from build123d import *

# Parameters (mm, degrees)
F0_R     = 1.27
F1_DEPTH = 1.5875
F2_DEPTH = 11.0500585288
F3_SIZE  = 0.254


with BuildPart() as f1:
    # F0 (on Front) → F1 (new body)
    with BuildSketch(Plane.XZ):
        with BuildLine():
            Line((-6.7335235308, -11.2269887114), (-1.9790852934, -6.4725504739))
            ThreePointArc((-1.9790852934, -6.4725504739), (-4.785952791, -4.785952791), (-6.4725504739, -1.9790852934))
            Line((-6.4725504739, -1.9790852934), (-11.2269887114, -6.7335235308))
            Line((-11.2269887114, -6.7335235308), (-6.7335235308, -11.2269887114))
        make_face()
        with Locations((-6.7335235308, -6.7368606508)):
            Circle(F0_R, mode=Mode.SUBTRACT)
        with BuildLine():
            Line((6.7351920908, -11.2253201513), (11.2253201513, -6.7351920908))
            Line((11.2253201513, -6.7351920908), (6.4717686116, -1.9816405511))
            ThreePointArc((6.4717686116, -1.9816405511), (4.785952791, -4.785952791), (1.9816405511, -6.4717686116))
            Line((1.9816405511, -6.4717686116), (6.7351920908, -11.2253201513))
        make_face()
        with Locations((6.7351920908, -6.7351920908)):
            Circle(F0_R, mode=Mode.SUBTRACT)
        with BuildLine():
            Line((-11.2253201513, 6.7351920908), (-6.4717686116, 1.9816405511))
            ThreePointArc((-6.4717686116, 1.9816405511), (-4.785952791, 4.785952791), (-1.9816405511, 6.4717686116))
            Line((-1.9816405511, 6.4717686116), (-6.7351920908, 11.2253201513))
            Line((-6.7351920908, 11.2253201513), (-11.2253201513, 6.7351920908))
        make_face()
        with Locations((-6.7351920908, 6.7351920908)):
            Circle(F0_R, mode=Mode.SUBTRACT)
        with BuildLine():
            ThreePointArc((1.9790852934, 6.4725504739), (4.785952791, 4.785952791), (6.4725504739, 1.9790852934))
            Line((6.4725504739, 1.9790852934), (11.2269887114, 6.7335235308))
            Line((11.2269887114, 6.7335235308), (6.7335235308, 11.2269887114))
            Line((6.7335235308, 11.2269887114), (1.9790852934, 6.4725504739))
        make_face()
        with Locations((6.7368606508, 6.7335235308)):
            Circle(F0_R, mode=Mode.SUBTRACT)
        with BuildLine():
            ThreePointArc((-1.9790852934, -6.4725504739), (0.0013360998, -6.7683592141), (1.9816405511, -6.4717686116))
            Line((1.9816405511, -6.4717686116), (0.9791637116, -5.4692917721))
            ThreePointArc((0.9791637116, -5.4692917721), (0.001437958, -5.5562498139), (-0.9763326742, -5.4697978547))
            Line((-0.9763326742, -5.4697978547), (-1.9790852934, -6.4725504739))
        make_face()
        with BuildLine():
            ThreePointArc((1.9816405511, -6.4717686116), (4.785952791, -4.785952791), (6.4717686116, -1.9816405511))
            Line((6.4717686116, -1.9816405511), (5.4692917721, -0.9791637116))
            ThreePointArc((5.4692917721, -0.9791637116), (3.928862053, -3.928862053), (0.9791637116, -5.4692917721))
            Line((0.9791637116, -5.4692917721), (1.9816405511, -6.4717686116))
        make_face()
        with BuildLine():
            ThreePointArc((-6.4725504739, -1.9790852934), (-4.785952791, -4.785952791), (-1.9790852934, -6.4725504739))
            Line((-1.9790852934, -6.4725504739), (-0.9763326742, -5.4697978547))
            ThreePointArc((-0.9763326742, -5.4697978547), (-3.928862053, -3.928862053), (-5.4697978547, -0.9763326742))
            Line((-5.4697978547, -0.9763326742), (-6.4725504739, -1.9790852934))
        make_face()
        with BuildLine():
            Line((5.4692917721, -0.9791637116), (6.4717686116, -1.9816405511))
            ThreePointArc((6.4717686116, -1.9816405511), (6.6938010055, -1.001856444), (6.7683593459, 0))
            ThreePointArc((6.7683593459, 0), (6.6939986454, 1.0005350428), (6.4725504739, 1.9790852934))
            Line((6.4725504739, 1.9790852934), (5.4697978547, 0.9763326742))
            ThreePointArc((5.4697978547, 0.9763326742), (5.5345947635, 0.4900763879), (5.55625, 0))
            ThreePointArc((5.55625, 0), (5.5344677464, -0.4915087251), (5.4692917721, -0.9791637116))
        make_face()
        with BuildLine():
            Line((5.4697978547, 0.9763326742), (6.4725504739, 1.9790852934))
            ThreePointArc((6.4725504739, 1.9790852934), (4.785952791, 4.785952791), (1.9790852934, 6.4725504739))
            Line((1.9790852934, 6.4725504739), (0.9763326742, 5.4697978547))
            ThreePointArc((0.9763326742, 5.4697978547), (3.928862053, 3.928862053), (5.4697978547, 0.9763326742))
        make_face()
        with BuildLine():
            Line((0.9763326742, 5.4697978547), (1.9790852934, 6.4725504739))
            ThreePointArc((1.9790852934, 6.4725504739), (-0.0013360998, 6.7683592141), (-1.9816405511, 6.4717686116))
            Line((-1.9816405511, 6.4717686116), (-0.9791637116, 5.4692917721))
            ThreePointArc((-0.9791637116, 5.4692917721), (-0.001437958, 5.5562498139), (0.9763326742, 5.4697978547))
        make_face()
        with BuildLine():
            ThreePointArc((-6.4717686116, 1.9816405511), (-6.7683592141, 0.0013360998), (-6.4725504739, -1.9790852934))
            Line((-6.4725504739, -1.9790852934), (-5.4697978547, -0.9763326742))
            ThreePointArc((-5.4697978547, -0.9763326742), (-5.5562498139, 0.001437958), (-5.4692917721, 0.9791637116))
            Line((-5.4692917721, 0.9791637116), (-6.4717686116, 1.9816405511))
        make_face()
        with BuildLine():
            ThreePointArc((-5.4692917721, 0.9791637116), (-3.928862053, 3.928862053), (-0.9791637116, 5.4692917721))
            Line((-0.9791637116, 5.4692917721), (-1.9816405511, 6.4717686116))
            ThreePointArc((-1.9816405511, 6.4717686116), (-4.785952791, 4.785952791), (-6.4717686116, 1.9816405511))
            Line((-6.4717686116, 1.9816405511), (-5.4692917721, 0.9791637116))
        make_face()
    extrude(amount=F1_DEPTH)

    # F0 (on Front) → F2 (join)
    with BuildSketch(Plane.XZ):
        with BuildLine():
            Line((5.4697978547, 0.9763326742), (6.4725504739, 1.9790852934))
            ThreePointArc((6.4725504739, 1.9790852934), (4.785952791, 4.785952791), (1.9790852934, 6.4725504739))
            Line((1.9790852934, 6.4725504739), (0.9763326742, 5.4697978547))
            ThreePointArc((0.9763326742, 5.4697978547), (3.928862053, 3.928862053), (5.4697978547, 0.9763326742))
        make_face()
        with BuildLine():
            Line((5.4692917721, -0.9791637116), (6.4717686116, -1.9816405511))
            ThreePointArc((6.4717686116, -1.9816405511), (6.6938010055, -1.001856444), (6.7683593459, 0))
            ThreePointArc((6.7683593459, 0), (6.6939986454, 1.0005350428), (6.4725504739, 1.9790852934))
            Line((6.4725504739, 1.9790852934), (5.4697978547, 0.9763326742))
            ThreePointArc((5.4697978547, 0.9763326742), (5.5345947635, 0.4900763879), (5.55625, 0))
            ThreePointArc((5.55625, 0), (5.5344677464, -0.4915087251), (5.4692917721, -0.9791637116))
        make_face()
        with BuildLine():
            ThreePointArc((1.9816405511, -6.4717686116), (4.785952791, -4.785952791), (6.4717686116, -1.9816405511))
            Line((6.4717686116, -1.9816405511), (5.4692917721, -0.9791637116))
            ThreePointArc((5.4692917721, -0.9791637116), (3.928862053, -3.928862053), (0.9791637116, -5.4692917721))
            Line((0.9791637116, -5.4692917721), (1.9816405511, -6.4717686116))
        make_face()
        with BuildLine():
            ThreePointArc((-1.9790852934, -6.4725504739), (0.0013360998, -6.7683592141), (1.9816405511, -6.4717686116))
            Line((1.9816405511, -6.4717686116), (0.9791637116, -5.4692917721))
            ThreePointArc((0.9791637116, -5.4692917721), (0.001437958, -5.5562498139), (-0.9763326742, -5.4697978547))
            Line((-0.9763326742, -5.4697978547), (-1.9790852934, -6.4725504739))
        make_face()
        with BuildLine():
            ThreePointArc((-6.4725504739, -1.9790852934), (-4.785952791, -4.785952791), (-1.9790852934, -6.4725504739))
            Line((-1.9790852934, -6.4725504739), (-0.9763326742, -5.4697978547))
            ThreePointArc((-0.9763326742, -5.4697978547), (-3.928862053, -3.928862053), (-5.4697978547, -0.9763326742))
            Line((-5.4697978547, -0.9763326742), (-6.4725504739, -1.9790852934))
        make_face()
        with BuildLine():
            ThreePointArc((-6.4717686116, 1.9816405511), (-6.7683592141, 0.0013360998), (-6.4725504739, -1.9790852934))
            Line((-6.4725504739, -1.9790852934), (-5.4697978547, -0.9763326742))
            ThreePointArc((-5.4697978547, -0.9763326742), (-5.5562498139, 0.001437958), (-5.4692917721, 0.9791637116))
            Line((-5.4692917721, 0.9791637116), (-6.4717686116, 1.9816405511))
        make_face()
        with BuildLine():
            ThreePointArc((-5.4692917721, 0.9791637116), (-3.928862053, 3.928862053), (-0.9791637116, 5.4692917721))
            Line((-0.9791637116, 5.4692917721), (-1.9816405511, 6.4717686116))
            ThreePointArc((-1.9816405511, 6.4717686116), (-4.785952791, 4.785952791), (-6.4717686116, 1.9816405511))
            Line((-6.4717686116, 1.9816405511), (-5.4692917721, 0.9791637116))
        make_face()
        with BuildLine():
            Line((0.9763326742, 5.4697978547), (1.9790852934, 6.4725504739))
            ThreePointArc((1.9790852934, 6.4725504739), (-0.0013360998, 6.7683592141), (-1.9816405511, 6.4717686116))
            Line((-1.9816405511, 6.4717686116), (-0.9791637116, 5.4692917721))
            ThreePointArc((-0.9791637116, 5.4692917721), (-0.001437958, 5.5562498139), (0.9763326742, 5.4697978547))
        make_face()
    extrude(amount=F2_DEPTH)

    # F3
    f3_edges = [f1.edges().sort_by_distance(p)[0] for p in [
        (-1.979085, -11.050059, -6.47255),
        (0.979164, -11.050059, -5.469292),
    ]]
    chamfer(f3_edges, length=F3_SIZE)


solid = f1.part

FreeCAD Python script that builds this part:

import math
import FreeCAD as App
import Part
import Sketcher
from FreeCAD import Vector
Q = App.Units.Quantity


def edges_at(feature, points):
    """Names of the edges that pass closest to the given points."""
    edges = feature.Shape.Edges
    near = lambda p: min(range(len(edges)), key=lambda i: edges[i].distToShape(Part.Vertex(*p))[0])
    return sorted({f"Edge{near(p) + 1}" for p in points})

doc = App.newDocument("Part")
params = doc.addObject("Spreadsheet::Sheet", "Params")
for row, (alias, value) in enumerate([
    ("sketch1_diameter", "0.1 in"),
    ("sketch1_radius", "0.21875 in"),
    ("sketch1_length", "0.25 in"),
    ("pad1_length", "0.0625 in"),
    ("sketch2_radius", "0.21875 in"),
    ("pad2_length", "11.050059 mm"),
    ("chamfer_size", "0.01 in"),
], start=1):
    params.set(f"A{row}", alias)
    params.set(f"B{row}", "=" + value)
    params.setAlias(f"B{row}", alias)

body = doc.addObject("PartDesign::Body", "Body")

# Sketch on XZ plane
sketch1 = body.newObject("Sketcher::SketchObject", "Sketch")
sketch1.AttachmentSupport = (doc.getObject("XZ_Plane"), [""])
sketch1.MapMode = "FlatFace"
sketch1.addGeometry(Part.LineSegment(Vector(-6.7, -11.2, 0), Vector(-2, -6.5, 0)), False)
sketch1.addGeometry(Part.ArcOfCircle(Part.Circle(Vector(0, 0, 0), Vector(0, 0, 1), 6.8), math.radians(-107), math.radians(-73)), False)
sketch1.addGeometry(Part.LineSegment(Vector(2, -6.5, 0), Vector(6.7, -11.2, 0)), False)
sketch1.addGeometry(Part.LineSegment(Vector(6.7, -11.2, 0), Vector(11.2, -6.7, 0)), False)
sketch1.addGeometry(Part.LineSegment(Vector(11.2, -6.7, 0), Vector(6.5, -2, 0)), False)
sketch1.addGeometry(Part.ArcOfCircle(Part.Circle(Vector(0, 0, 0), Vector(0, 0, 1), 6.8), math.radians(-17.02), math.radians(0)), False)
sketch1.addGeometry(Part.ArcOfCircle(Part.Circle(Vector(0, 0, 0), Vector(0, 0, 1), 6.8), math.radians(0), math.radians(17)), False)
sketch1.addGeometry(Part.LineSegment(Vector(6.5, 2, 0), Vector(11.2, 6.7, 0)), False)
sketch1.addGeometry(Part.LineSegment(Vector(11.2, 6.7, 0), Vector(6.7, 11.2, 0)), False)
sketch1.addGeometry(Part.LineSegment(Vector(6.7, 11.2, 0), Vector(2, 6.5, 0)), False)
sketch1.addGeometry(Part.ArcOfCircle(Part.Circle(Vector(0, 0, 0), Vector(0, 0, 1), 6.8), math.radians(73), math.radians(107)), False)
sketch1.addGeometry(Part.LineSegment(Vector(-2, 6.5, 0), Vector(-6.7, 11.2, 0)), False)
sketch1.addGeometry(Part.LineSegment(Vector(-6.7, 11.2, 0), Vector(-11.2, 6.7, 0)), False)
sketch1.addGeometry(Part.LineSegment(Vector(-11.2, 6.7, 0), Vector(-6.5, 2, 0)), False)
sketch1.addGeometry(Part.ArcOfCircle(Part.Circle(Vector(0, 0, 0), Vector(0, 0, 1), 6.8), math.radians(163), math.radians(197)), False)
sketch1.addGeometry(Part.LineSegment(Vector(-6.5, -2, 0), Vector(-11.2, -6.7, 0)), False)
sketch1.addGeometry(Part.LineSegment(Vector(-11.2, -6.7, 0), Vector(-6.7, -11.2, 0)), False)
sketch1.addGeometry(Part.ArcOfCircle(Part.Circle(Vector(0, 0, 0), Vector(0, 0, 1), 5.6), math.radians(80), math.radians(100)), False)
sketch1.addGeometry(Part.ArcOfCircle(Part.Circle(Vector(0, 0, 0), Vector(0, 0, 1), 5.6), math.radians(10), math.radians(80)), False)
sketch1.addGeometry(Part.ArcOfCircle(Part.Circle(Vector(0, 0, 0), Vector(0, 0, 1), 5.6), math.radians(0), math.radians(10.12)), False)
sketch1.addGeometry(Part.ArcOfCircle(Part.Circle(Vector(0, 0, 0), Vector(0, 0, 1), 5.6), math.radians(-10.15), math.radians(0)), False)
sketch1.addGeometry(Part.ArcOfCircle(Part.Circle(Vector(0, 0, 0), Vector(0, 0, 1), 5.6), math.radians(-80), math.radians(-10)), False)
sketch1.addGeometry(Part.ArcOfCircle(Part.Circle(Vector(0, 0, 0), Vector(0, 0, 1), 5.6), math.radians(-100), math.radians(-80)), False)
sketch1.addGeometry(Part.ArcOfCircle(Part.Circle(Vector(0, 0, 0), Vector(0, 0, 1), 5.6), math.radians(-170), math.radians(-100)), False)
sketch1.addGeometry(Part.ArcOfCircle(Part.Circle(Vector(0, 0, 0), Vector(0, 0, 1), 5.6), math.radians(170), math.radians(190)), False)
sketch1.addGeometry(Part.ArcOfCircle(Part.Circle(Vector(0, 0, 0), Vector(0, 0, 1), 5.6), math.radians(100), math.radians(170)), False)
sketch1.addGeometry(Part.Circle(Vector(-6.7, -6.7, 0), Vector(0, 0, 1), 1.3), False)
sketch1.addGeometry(Part.Circle(Vector(6.7, -6.7, 0), Vector(0, 0, 1), 1.3), False)
sketch1.addGeometry(Part.Circle(Vector(6.7, 6.7, 0), Vector(0, 0, 1), 1.3), False)
sketch1.addGeometry(Part.Circle(Vector(-6.7, 6.7, 0), Vector(0, 0, 1), 1.3), False)
sketch1.addConstraint(Sketcher.Constraint("Coincident", 0, 2, 1, 1))
sketch1.addConstraint(Sketcher.Constraint("Coincident", 1, 2, 2, 1))
sketch1.addConstraint(Sketcher.Constraint("Coincident", 2, 2, 3, 1))
sketch1.addConstraint(Sketcher.Constraint("Coincident", 3, 2, 4, 1))
sketch1.addConstraint(Sketcher.Constraint("Coincident", 4, 2, 5, 1))
sketch1.addConstraint(Sketcher.Constraint("Tangent", 5, 2, 6, 1))
sketch1.addConstraint(Sketcher.Constraint("Coincident", 6, 2, 7, 1))
sketch1.addConstraint(Sketcher.Constraint("Coincident", 7, 2, 8, 1))
sketch1.addConstraint(Sketcher.Constraint("Coincident", 8, 2, 9, 1))
sketch1.addConstraint(Sketcher.Constraint("Coincident", 9, 2, 10, 1))
sketch1.addConstraint(Sketcher.Constraint("Coincident", 10, 2, 11, 1))
sketch1.addConstraint(Sketcher.Constraint("Coincident", 11, 2, 12, 1))
sketch1.addConstraint(Sketcher.Constraint("Coincident", 12, 2, 13, 1))
sketch1.addConstraint(Sketcher.Constraint("Coincident", 13, 2, 14, 1))
sketch1.addConstraint(Sketcher.Constraint("Coincident", 14, 2, 15, 1))
sketch1.addConstraint(Sketcher.Constraint("Coincident", 15, 2, 16, 1))
sketch1.addConstraint(Sketcher.Constraint("Coincident", 16, 2, 0, 1))
sketch1.addConstraint(Sketcher.Constraint("Tangent", 17, 1, 18, 2))
sketch1.addConstraint(Sketcher.Constraint("Tangent", 18, 1, 19, 2))
sketch1.addConstraint(Sketcher.Constraint("Tangent", 19, 1, 20, 2))
sketch1.addConstraint(Sketcher.Constraint("Tangent", 20, 1, 21, 2))
sketch1.addConstraint(Sketcher.Constraint("Tangent", 21, 1, 22, 2))
sketch1.addConstraint(Sketcher.Constraint("Tangent", 22, 1, 23, 2))
sketch1.addConstraint(Sketcher.Constraint("Tangent", 23, 1, 24, 2))
sketch1.addConstraint(Sketcher.Constraint("Tangent", 24, 1, 25, 2))
sketch1.addConstraint(Sketcher.Constraint("Tangent", 25, 1, 17, 2))
sketch1.addConstraint(Sketcher.Constraint("Coincident", 1, 3, -1, 1))
sketch1.addConstraint(Sketcher.Constraint("Coincident", 5, 3, -1, 1))
sketch1.addConstraint(Sketcher.Constraint("Coincident", 10, 3, -1, 1))
sketch1.addConstraint(Sketcher.Constraint("Coincident", 14, 3, -1, 1))
sketch1.addConstraint(Sketcher.Constraint("Coincident", 17, 3, -1, 1))
sketch1.addConstraint(Sketcher.Constraint("Coincident", 19, 3, -1, 1))
sketch1.addConstraint(Sketcher.Constraint("Coincident", 21, 3, -1, 1))
sketch1.addConstraint(Sketcher.Constraint("Coincident", 23, 3, -1, 1))
sketch1.addConstraint(Sketcher.Constraint("Equal", 1, 5))
sketch1.addConstraint(Sketcher.Constraint("Equal", 5, 6))
sketch1.addConstraint(Sketcher.Constraint("Equal", 6, 10))
sketch1.addConstraint(Sketcher.Constraint("Equal", 10, 14))
sketch1.addConstraint(Sketcher.Constraint("Equal", 26, 27))
sketch1.addConstraint(Sketcher.Constraint("Equal", 27, 28))
sketch1.addConstraint(Sketcher.Constraint("Equal", 28, 29))
sketch1.addConstraint(Sketcher.Constraint("Symmetric", 27, 3, 29, 3, -1, 1))
sketch1.addConstraint(Sketcher.Constraint("Symmetric", 2, 2, 11, 2, -1, 1))
sketch1.addConstraint(Sketcher.Constraint("Symmetric", 3, 2, 12, 2, -1, 1))
sketch1.addConstraint(Sketcher.Constraint("Symmetric", 7, 2, 15, 2, -1, 1))
sketch1.addConstraint(Sketcher.Constraint("Symmetric", 8, 2, 16, 2, -1, 1))
sketch1.addConstraint(Sketcher.Constraint("PointOnObject", 5, 2, -1))
sketch1.addConstraint(Sketcher.Constraint("PointOnObject", 19, 1, -1))
sketch1.addConstraint(Sketcher.Constraint("Perpendicular", 0, 2))
sketch1.addConstraint(Sketcher.Constraint("Perpendicular", 2, 3))
sketch1.addConstraint(Sketcher.Constraint("Perpendicular", 3, 4))
sketch1.addConstraint(Sketcher.Constraint("Perpendicular", 4, 7))
sketch1.addConstraint(Sketcher.Constraint("Perpendicular", 7, 8))
sketch1.addConstraint(Sketcher.Constraint("Perpendicular", 8, 9))
sketch1.addConstraint(Sketcher.Constraint("Perpendicular", 9, 11))
sketch1.addConstraint(Sketcher.Constraint("Perpendicular", 12, 13))
sketch1.addConstraint(Sketcher.Constraint("Perpendicular", 13, 15))
sketch1.addConstraint(Sketcher.Constraint("Horizontal", 27, 3, 3, 2))
sketch1.addConstraint(Sketcher.Constraint("Horizontal", 28, 3, 7, 2))
sketch1.addConstraint(Sketcher.Constraint("Vertical", 27, 3, 2, 2))
sketch1.addConstraint(Sketcher.Constraint("Vertical", 26, 3, 16, 2))
sketch1.addConstraint(Sketcher.Constraint("Equal", 2, 4))
sketch1.addConstraint(Sketcher.Constraint("Equal", 0, 7))
sketch1.addConstraint(Sketcher.Constraint("Diameter", 26, Q("0.1 in")))
sketch1.addConstraint(Sketcher.Constraint("Angle", 0, Q("45 deg")))
sketch1.addConstraint(Sketcher.Constraint("Radius", 17, Q("0.21875 in")))
sketch1.addConstraint(Sketcher.Constraint("Distance", 3, Q("0.25 in")))
sketch1.addConstraint(Sketcher.Constraint("Radius", 1, Q("6.768359 mm")))
sketch1.addConstraint(Sketcher.Constraint("DistanceX", 28, 3, 5, 2, Q("0.031499 mm")))
sketch1.addConstraint(Sketcher.Constraint("DistanceX", 19, 1, 6, 2, Q("0.9163 mm")))
sketch1.addConstraint(Sketcher.Constraint("Distance", 0, Q("6.723791 mm")))
sketch1.addConstraint(Sketcher.Constraint("DistanceY", 26, 3, -1, 1, Q("6.736861 mm")))
sketch1.addConstraint(Sketcher.Constraint("DistanceY", 2, 2, -1, 1, Q("11.22532 mm")))
sketch1.addConstraint(Sketcher.Constraint("DistanceX", -1, 1, 20, 1, Q("5.469292 mm")))
sketch1.addConstraint(Sketcher.Constraint("DistanceY", 21, 1, -1, 1, Q("5.469292 mm")))
sketch1.addConstraint(Sketcher.Constraint("DistanceX", 24, 1, -1, 1, Q("5.469292 mm")))
sketch1.addConstraint(Sketcher.Constraint("DistanceY", -1, 1, 25, 1, Q("5.469292 mm")))
sketch1.addConstraint(Sketcher.Constraint("DistanceY", 17, 1, 10, 2, Q("1.001971 mm")))
sketch1.addConstraint(Sketcher.Constraint("DistanceX", 18, 1, 5, 2, Q("1.298561 mm")))
sketch1.addConstraint(Sketcher.Constraint("DistanceY", 1, 2, 22, 1, Q("1.001971 mm")))
sketch1.addConstraint(Sketcher.Constraint("DistanceX", 13, 2, 23, 1, Q("1.001971 mm")))
sketch1.setExpression("Constraints[63]", "Params.sketch1_diameter")
sketch1.setExpression("Constraints[65]", "Params.sketch1_radius")
sketch1.setExpression("Constraints[66]", "Params.sketch1_length")
pad1 = body.newObject("PartDesign::Pad", "Pad")
pad1.Profile = sketch1
pad1.setExpression("Length", "Params.pad1_length")

# Sketch on XZ plane
sketch2 = body.newObject("Sketcher::SketchObject", "Sketch001")
sketch2.AttachmentSupport = (doc.getObject("XZ_Plane"), [""])
sketch2.MapMode = "FlatFace"
sketch2.addGeometry(Part.ArcOfCircle(Part.Circle(Vector(0, 0, 0), Vector(0, 0, 1), 6.8), math.radians(17), math.radians(73)), False)
sketch2.addGeometry(Part.ArcOfCircle(Part.Circle(Vector(0, 0, 0), Vector(0, 0, 1), 6.8), math.radians(73), math.radians(107)), False)
sketch2.addGeometry(Part.ArcOfCircle(Part.Circle(Vector(0, 0, 0), Vector(0, 0, 1), 6.8), math.radians(107), math.radians(163)), False)
sketch2.addGeometry(Part.ArcOfCircle(Part.Circle(Vector(0, 0, 0), Vector(0, 0, 1), 6.8), math.radians(163), math.radians(197)), False)
sketch2.addGeometry(Part.ArcOfCircle(Part.Circle(Vector(0, 0, 0), Vector(0, 0, 1), 6.8), math.radians(-163), math.radians(-107)), False)
sketch2.addGeometry(Part.ArcOfCircle(Part.Circle(Vector(0, 0, 0), Vector(0, 0, 1), 6.8), math.radians(-107), math.radians(-73)), False)
sketch2.addGeometry(Part.ArcOfCircle(Part.Circle(Vector(0, 0, 0), Vector(0, 0, 1), 6.8), math.radians(-73), math.radians(-17)), False)
sketch2.addGeometry(Part.ArcOfCircle(Part.Circle(Vector(0, 0, 0), Vector(0, 0, 1), 6.8), math.radians(-17.02), math.radians(0)), False)
sketch2.addGeometry(Part.ArcOfCircle(Part.Circle(Vector(0, 0, 0), Vector(0, 0, 1), 6.8), math.radians(0), math.radians(17)), False)
sketch2.addGeometry(Part.ArcOfCircle(Part.Circle(Vector(0, 0, 0), Vector(0, 0, 1), 5.6), math.radians(10), math.radians(80)), False)
sketch2.addGeometry(Part.ArcOfCircle(Part.Circle(Vector(0, 0, 0), Vector(0, 0, 1), 5.6), math.radians(0), math.radians(10.12)), False)
sketch2.addGeometry(Part.ArcOfCircle(Part.Circle(Vector(0, 0, 0), Vector(0, 0, 1), 5.6), math.radians(-10.15), math.radians(0)), False)
sketch2.addGeometry(Part.ArcOfCircle(Part.Circle(Vector(0, 0, 0), Vector(0, 0, 1), 5.6), math.radians(-80), math.radians(-10)), False)
sketch2.addGeometry(Part.ArcOfCircle(Part.Circle(Vector(0, 0, 0), Vector(0, 0, 1), 5.6), math.radians(-100), math.radians(-80)), False)
sketch2.addGeometry(Part.ArcOfCircle(Part.Circle(Vector(0, 0, 0), Vector(0, 0, 1), 5.6), math.radians(-170), math.radians(-100)), False)
sketch2.addGeometry(Part.ArcOfCircle(Part.Circle(Vector(0, 0, 0), Vector(0, 0, 1), 5.6), math.radians(170), math.radians(190)), False)
sketch2.addGeometry(Part.ArcOfCircle(Part.Circle(Vector(0, 0, 0), Vector(0, 0, 1), 5.6), math.radians(100), math.radians(170)), False)
sketch2.addGeometry(Part.ArcOfCircle(Part.Circle(Vector(0, 0, 0), Vector(0, 0, 1), 5.6), math.radians(80), math.radians(100)), False)
sketch2.addConstraint(Sketcher.Constraint("Tangent", 0, 2, 1, 1))
sketch2.addConstraint(Sketcher.Constraint("Tangent", 1, 2, 2, 1))
sketch2.addConstraint(Sketcher.Constraint("Tangent", 2, 2, 3, 1))
sketch2.addConstraint(Sketcher.Constraint("Tangent", 3, 2, 4, 1))
sketch2.addConstraint(Sketcher.Constraint("Tangent", 4, 2, 5, 1))
sketch2.addConstraint(Sketcher.Constraint("Tangent", 5, 2, 6, 1))
sketch2.addConstraint(Sketcher.Constraint("Tangent", 6, 2, 7, 1))
sketch2.addConstraint(Sketcher.Constraint("Tangent", 7, 2, 8, 1))
sketch2.addConstraint(Sketcher.Constraint("Tangent", 8, 2, 0, 1))
sketch2.addConstraint(Sketcher.Constraint("Tangent", 9, 1, 10, 2))
sketch2.addConstraint(Sketcher.Constraint("Tangent", 10, 1, 11, 2))
sketch2.addConstraint(Sketcher.Constraint("Tangent", 11, 1, 12, 2))
sketch2.addConstraint(Sketcher.Constraint("Tangent", 12, 1, 13, 2))
sketch2.addConstraint(Sketcher.Constraint("Tangent", 13, 1, 14, 2))
sketch2.addConstraint(Sketcher.Constraint("Tangent", 14, 1, 15, 2))
sketch2.addConstraint(Sketcher.Constraint("Tangent", 15, 1, 16, 2))
sketch2.addConstraint(Sketcher.Constraint("Tangent", 16, 1, 17, 2))
sketch2.addConstraint(Sketcher.Constraint("Tangent", 17, 1, 9, 2))
sketch2.addConstraint(Sketcher.Constraint("Coincident", 0, 3, -1, 1))
sketch2.addConstraint(Sketcher.Constraint("Coincident", 2, 3, -1, 1))
sketch2.addConstraint(Sketcher.Constraint("Coincident", 4, 3, -1, 1))
sketch2.addConstraint(Sketcher.Constraint("Coincident", 6, 3, -1, 1))
sketch2.addConstraint(Sketcher.Constraint("Coincident", 9, 3, -1, 1))
sketch2.addConstraint(Sketcher.Constraint("Coincident", 11, 3, -1, 1))
sketch2.addConstraint(Sketcher.Constraint("Coincident", 13, 3, -1, 1))
sketch2.addConstraint(Sketcher.Constraint("Coincident", 15, 3, -1, 1))
sketch2.addConstraint(Sketcher.Constraint("PointOnObject", 7, 2, -1))
sketch2.addConstraint(Sketcher.Constraint("PointOnObject", 10, 1, -1))
sketch2.addConstraint(Sketcher.Constraint("Radius", 9, Q("0.21875 in")))
sketch2.addConstraint(Sketcher.Constraint("Radius", 0, Q("6.768359 mm")))
sketch2.addConstraint(Sketcher.Constraint("DistanceX", 10, 1, 8, 2, Q("0.9163 mm")))
sketch2.addConstraint(Sketcher.Constraint("DistanceY", -1, 1, 0, 2, Q("6.47255 mm")))
sketch2.addConstraint(Sketcher.Constraint("DistanceX", 1, 2, -1, 1, Q("1.981641 mm")))
sketch2.addConstraint(Sketcher.Constraint("DistanceX", 2, 2, -1, 1, Q("6.471769 mm")))
sketch2.addConstraint(Sketcher.Constraint("DistanceX", 3, 2, -1, 1, Q("6.47255 mm")))
sketch2.addConstraint(Sketcher.Constraint("DistanceY", 4, 2, -1, 1, Q("6.47255 mm")))
sketch2.addConstraint(Sketcher.Constraint("DistanceX", -1, 1, 5, 2, Q("1.981641 mm")))
sketch2.addConstraint(Sketcher.Constraint("DistanceX", -1, 1, 6, 2, Q("6.471769 mm")))
sketch2.addConstraint(Sketcher.Constraint("DistanceX", -1, 1, 11, 1, Q("5.469292 mm")))
sketch2.addConstraint(Sketcher.Constraint("DistanceY", 12, 1, -1, 1, Q("5.469292 mm")))
sketch2.addConstraint(Sketcher.Constraint("DistanceX", 15, 1, -1, 1, Q("5.469292 mm")))
sketch2.addConstraint(Sketcher.Constraint("DistanceY", -1, 1, 16, 1, Q("5.469292 mm")))
sketch2.addConstraint(Sketcher.Constraint("DistanceX", 9, 1, 7, 2, Q("1.298561 mm")))
sketch2.addConstraint(Sketcher.Constraint("DistanceY", 5, 2, 13, 1, Q("1.001971 mm")))
sketch2.addConstraint(Sketcher.Constraint("DistanceX", 2, 2, 14, 1, Q("1.001971 mm")))
sketch2.addConstraint(Sketcher.Constraint("DistanceY", 17, 1, 1, 2, Q("1.001971 mm")))
sketch2.setExpression("Constraints[28]", "Params.sketch2_radius")
pad2 = body.newObject("PartDesign::Pad", "Pad001")
pad2.Profile = sketch2
pad2.setExpression("Length", "Params.pad2_length")
doc.recompute()

chamfer = body.newObject("PartDesign::Chamfer", "Chamfer")
chamfer.Base = (pad2, edges_at(pad2, [(0.001, -11.05, -6.768), (3.929, -11.05, -3.929)]))
chamfer.setExpression("Size", "Params.chamfer_size")

doc.recompute()
